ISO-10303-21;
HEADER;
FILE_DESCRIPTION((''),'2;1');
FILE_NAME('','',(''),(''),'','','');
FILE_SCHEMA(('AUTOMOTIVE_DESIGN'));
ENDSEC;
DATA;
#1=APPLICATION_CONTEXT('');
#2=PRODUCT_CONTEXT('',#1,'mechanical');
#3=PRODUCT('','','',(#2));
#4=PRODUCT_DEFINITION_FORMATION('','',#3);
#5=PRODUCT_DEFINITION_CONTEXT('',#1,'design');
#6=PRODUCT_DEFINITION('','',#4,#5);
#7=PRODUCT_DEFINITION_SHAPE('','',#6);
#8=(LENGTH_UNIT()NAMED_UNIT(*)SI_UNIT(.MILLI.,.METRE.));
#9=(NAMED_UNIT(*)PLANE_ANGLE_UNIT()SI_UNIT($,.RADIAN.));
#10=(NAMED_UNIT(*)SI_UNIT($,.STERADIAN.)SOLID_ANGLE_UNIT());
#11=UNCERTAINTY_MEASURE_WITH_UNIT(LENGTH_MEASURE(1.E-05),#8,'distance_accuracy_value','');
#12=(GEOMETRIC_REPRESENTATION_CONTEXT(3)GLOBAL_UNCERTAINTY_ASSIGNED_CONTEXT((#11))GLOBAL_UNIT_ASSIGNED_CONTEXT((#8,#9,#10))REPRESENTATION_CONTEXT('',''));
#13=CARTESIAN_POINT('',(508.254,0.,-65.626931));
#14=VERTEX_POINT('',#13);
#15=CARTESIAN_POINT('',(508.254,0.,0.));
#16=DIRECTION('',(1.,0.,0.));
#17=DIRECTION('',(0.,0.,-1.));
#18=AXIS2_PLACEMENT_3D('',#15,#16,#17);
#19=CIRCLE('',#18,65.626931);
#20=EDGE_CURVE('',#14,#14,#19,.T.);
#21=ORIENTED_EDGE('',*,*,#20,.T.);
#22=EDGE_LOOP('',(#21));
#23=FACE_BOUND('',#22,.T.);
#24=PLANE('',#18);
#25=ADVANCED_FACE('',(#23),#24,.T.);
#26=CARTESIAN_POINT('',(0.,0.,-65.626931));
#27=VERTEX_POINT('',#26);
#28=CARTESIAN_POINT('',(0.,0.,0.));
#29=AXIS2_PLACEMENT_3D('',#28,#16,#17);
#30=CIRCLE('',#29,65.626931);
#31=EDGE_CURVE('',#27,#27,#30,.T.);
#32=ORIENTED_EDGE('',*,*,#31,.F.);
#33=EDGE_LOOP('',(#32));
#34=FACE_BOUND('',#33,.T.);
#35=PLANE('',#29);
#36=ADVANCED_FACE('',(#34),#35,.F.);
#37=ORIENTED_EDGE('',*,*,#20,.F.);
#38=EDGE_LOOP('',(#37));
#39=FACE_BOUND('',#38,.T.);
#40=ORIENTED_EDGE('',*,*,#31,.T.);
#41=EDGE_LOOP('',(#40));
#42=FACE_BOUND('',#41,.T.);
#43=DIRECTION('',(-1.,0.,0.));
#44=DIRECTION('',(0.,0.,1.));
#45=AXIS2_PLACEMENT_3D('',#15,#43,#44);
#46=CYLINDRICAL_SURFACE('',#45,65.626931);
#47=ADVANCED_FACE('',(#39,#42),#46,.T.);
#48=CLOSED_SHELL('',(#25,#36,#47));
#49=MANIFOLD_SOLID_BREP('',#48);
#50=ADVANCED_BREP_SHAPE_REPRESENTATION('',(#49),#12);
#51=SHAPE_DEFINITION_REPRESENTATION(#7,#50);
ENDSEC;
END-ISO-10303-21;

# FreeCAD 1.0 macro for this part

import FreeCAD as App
import Part
import Sketcher
from FreeCAD import Vector
Q = App.Units.Quantity

doc = App.newDocument("Part")
params = doc.addObject("Spreadsheet::Sheet", "Params")
for row, (alias, value) in enumerate([
    ("pad1_length", "20.01 in"),
], start=1):
    params.set(f"A{row}", alias)
    params.set(f"B{row}", "=" + value)
    params.setAlias(f"B{row}", alias)

body = doc.addObject("PartDesign::Body", "Body")

# Sketch on YZ plane
sketch1 = doc.addObject("Sketcher::SketchObject", "Sketch")
body.addObject(sketch1)
sketch1.AttachmentSupport = (doc.YZ_Plane, [""])
sketch1.MapMode = "FlatFace"
sketch1.addGeometry(Part.Circle(Vector(0, 0, 0), Vector(0, 0, 1), 66), False)
sketch1.addConstraint([
    Sketcher.Constraint("Coincident", 0, 3, -1, 1),
    Sketcher.Constraint("Diameter", 0, Q("131.253862 mm")),
])
pad1 = doc.addObject("PartDesign::Pad", "Pad")
body.addObject(pad1)
pad1.Profile = sketch1
pad1.setExpression("Length", "Params.pad1_length")

doc.recompute()
